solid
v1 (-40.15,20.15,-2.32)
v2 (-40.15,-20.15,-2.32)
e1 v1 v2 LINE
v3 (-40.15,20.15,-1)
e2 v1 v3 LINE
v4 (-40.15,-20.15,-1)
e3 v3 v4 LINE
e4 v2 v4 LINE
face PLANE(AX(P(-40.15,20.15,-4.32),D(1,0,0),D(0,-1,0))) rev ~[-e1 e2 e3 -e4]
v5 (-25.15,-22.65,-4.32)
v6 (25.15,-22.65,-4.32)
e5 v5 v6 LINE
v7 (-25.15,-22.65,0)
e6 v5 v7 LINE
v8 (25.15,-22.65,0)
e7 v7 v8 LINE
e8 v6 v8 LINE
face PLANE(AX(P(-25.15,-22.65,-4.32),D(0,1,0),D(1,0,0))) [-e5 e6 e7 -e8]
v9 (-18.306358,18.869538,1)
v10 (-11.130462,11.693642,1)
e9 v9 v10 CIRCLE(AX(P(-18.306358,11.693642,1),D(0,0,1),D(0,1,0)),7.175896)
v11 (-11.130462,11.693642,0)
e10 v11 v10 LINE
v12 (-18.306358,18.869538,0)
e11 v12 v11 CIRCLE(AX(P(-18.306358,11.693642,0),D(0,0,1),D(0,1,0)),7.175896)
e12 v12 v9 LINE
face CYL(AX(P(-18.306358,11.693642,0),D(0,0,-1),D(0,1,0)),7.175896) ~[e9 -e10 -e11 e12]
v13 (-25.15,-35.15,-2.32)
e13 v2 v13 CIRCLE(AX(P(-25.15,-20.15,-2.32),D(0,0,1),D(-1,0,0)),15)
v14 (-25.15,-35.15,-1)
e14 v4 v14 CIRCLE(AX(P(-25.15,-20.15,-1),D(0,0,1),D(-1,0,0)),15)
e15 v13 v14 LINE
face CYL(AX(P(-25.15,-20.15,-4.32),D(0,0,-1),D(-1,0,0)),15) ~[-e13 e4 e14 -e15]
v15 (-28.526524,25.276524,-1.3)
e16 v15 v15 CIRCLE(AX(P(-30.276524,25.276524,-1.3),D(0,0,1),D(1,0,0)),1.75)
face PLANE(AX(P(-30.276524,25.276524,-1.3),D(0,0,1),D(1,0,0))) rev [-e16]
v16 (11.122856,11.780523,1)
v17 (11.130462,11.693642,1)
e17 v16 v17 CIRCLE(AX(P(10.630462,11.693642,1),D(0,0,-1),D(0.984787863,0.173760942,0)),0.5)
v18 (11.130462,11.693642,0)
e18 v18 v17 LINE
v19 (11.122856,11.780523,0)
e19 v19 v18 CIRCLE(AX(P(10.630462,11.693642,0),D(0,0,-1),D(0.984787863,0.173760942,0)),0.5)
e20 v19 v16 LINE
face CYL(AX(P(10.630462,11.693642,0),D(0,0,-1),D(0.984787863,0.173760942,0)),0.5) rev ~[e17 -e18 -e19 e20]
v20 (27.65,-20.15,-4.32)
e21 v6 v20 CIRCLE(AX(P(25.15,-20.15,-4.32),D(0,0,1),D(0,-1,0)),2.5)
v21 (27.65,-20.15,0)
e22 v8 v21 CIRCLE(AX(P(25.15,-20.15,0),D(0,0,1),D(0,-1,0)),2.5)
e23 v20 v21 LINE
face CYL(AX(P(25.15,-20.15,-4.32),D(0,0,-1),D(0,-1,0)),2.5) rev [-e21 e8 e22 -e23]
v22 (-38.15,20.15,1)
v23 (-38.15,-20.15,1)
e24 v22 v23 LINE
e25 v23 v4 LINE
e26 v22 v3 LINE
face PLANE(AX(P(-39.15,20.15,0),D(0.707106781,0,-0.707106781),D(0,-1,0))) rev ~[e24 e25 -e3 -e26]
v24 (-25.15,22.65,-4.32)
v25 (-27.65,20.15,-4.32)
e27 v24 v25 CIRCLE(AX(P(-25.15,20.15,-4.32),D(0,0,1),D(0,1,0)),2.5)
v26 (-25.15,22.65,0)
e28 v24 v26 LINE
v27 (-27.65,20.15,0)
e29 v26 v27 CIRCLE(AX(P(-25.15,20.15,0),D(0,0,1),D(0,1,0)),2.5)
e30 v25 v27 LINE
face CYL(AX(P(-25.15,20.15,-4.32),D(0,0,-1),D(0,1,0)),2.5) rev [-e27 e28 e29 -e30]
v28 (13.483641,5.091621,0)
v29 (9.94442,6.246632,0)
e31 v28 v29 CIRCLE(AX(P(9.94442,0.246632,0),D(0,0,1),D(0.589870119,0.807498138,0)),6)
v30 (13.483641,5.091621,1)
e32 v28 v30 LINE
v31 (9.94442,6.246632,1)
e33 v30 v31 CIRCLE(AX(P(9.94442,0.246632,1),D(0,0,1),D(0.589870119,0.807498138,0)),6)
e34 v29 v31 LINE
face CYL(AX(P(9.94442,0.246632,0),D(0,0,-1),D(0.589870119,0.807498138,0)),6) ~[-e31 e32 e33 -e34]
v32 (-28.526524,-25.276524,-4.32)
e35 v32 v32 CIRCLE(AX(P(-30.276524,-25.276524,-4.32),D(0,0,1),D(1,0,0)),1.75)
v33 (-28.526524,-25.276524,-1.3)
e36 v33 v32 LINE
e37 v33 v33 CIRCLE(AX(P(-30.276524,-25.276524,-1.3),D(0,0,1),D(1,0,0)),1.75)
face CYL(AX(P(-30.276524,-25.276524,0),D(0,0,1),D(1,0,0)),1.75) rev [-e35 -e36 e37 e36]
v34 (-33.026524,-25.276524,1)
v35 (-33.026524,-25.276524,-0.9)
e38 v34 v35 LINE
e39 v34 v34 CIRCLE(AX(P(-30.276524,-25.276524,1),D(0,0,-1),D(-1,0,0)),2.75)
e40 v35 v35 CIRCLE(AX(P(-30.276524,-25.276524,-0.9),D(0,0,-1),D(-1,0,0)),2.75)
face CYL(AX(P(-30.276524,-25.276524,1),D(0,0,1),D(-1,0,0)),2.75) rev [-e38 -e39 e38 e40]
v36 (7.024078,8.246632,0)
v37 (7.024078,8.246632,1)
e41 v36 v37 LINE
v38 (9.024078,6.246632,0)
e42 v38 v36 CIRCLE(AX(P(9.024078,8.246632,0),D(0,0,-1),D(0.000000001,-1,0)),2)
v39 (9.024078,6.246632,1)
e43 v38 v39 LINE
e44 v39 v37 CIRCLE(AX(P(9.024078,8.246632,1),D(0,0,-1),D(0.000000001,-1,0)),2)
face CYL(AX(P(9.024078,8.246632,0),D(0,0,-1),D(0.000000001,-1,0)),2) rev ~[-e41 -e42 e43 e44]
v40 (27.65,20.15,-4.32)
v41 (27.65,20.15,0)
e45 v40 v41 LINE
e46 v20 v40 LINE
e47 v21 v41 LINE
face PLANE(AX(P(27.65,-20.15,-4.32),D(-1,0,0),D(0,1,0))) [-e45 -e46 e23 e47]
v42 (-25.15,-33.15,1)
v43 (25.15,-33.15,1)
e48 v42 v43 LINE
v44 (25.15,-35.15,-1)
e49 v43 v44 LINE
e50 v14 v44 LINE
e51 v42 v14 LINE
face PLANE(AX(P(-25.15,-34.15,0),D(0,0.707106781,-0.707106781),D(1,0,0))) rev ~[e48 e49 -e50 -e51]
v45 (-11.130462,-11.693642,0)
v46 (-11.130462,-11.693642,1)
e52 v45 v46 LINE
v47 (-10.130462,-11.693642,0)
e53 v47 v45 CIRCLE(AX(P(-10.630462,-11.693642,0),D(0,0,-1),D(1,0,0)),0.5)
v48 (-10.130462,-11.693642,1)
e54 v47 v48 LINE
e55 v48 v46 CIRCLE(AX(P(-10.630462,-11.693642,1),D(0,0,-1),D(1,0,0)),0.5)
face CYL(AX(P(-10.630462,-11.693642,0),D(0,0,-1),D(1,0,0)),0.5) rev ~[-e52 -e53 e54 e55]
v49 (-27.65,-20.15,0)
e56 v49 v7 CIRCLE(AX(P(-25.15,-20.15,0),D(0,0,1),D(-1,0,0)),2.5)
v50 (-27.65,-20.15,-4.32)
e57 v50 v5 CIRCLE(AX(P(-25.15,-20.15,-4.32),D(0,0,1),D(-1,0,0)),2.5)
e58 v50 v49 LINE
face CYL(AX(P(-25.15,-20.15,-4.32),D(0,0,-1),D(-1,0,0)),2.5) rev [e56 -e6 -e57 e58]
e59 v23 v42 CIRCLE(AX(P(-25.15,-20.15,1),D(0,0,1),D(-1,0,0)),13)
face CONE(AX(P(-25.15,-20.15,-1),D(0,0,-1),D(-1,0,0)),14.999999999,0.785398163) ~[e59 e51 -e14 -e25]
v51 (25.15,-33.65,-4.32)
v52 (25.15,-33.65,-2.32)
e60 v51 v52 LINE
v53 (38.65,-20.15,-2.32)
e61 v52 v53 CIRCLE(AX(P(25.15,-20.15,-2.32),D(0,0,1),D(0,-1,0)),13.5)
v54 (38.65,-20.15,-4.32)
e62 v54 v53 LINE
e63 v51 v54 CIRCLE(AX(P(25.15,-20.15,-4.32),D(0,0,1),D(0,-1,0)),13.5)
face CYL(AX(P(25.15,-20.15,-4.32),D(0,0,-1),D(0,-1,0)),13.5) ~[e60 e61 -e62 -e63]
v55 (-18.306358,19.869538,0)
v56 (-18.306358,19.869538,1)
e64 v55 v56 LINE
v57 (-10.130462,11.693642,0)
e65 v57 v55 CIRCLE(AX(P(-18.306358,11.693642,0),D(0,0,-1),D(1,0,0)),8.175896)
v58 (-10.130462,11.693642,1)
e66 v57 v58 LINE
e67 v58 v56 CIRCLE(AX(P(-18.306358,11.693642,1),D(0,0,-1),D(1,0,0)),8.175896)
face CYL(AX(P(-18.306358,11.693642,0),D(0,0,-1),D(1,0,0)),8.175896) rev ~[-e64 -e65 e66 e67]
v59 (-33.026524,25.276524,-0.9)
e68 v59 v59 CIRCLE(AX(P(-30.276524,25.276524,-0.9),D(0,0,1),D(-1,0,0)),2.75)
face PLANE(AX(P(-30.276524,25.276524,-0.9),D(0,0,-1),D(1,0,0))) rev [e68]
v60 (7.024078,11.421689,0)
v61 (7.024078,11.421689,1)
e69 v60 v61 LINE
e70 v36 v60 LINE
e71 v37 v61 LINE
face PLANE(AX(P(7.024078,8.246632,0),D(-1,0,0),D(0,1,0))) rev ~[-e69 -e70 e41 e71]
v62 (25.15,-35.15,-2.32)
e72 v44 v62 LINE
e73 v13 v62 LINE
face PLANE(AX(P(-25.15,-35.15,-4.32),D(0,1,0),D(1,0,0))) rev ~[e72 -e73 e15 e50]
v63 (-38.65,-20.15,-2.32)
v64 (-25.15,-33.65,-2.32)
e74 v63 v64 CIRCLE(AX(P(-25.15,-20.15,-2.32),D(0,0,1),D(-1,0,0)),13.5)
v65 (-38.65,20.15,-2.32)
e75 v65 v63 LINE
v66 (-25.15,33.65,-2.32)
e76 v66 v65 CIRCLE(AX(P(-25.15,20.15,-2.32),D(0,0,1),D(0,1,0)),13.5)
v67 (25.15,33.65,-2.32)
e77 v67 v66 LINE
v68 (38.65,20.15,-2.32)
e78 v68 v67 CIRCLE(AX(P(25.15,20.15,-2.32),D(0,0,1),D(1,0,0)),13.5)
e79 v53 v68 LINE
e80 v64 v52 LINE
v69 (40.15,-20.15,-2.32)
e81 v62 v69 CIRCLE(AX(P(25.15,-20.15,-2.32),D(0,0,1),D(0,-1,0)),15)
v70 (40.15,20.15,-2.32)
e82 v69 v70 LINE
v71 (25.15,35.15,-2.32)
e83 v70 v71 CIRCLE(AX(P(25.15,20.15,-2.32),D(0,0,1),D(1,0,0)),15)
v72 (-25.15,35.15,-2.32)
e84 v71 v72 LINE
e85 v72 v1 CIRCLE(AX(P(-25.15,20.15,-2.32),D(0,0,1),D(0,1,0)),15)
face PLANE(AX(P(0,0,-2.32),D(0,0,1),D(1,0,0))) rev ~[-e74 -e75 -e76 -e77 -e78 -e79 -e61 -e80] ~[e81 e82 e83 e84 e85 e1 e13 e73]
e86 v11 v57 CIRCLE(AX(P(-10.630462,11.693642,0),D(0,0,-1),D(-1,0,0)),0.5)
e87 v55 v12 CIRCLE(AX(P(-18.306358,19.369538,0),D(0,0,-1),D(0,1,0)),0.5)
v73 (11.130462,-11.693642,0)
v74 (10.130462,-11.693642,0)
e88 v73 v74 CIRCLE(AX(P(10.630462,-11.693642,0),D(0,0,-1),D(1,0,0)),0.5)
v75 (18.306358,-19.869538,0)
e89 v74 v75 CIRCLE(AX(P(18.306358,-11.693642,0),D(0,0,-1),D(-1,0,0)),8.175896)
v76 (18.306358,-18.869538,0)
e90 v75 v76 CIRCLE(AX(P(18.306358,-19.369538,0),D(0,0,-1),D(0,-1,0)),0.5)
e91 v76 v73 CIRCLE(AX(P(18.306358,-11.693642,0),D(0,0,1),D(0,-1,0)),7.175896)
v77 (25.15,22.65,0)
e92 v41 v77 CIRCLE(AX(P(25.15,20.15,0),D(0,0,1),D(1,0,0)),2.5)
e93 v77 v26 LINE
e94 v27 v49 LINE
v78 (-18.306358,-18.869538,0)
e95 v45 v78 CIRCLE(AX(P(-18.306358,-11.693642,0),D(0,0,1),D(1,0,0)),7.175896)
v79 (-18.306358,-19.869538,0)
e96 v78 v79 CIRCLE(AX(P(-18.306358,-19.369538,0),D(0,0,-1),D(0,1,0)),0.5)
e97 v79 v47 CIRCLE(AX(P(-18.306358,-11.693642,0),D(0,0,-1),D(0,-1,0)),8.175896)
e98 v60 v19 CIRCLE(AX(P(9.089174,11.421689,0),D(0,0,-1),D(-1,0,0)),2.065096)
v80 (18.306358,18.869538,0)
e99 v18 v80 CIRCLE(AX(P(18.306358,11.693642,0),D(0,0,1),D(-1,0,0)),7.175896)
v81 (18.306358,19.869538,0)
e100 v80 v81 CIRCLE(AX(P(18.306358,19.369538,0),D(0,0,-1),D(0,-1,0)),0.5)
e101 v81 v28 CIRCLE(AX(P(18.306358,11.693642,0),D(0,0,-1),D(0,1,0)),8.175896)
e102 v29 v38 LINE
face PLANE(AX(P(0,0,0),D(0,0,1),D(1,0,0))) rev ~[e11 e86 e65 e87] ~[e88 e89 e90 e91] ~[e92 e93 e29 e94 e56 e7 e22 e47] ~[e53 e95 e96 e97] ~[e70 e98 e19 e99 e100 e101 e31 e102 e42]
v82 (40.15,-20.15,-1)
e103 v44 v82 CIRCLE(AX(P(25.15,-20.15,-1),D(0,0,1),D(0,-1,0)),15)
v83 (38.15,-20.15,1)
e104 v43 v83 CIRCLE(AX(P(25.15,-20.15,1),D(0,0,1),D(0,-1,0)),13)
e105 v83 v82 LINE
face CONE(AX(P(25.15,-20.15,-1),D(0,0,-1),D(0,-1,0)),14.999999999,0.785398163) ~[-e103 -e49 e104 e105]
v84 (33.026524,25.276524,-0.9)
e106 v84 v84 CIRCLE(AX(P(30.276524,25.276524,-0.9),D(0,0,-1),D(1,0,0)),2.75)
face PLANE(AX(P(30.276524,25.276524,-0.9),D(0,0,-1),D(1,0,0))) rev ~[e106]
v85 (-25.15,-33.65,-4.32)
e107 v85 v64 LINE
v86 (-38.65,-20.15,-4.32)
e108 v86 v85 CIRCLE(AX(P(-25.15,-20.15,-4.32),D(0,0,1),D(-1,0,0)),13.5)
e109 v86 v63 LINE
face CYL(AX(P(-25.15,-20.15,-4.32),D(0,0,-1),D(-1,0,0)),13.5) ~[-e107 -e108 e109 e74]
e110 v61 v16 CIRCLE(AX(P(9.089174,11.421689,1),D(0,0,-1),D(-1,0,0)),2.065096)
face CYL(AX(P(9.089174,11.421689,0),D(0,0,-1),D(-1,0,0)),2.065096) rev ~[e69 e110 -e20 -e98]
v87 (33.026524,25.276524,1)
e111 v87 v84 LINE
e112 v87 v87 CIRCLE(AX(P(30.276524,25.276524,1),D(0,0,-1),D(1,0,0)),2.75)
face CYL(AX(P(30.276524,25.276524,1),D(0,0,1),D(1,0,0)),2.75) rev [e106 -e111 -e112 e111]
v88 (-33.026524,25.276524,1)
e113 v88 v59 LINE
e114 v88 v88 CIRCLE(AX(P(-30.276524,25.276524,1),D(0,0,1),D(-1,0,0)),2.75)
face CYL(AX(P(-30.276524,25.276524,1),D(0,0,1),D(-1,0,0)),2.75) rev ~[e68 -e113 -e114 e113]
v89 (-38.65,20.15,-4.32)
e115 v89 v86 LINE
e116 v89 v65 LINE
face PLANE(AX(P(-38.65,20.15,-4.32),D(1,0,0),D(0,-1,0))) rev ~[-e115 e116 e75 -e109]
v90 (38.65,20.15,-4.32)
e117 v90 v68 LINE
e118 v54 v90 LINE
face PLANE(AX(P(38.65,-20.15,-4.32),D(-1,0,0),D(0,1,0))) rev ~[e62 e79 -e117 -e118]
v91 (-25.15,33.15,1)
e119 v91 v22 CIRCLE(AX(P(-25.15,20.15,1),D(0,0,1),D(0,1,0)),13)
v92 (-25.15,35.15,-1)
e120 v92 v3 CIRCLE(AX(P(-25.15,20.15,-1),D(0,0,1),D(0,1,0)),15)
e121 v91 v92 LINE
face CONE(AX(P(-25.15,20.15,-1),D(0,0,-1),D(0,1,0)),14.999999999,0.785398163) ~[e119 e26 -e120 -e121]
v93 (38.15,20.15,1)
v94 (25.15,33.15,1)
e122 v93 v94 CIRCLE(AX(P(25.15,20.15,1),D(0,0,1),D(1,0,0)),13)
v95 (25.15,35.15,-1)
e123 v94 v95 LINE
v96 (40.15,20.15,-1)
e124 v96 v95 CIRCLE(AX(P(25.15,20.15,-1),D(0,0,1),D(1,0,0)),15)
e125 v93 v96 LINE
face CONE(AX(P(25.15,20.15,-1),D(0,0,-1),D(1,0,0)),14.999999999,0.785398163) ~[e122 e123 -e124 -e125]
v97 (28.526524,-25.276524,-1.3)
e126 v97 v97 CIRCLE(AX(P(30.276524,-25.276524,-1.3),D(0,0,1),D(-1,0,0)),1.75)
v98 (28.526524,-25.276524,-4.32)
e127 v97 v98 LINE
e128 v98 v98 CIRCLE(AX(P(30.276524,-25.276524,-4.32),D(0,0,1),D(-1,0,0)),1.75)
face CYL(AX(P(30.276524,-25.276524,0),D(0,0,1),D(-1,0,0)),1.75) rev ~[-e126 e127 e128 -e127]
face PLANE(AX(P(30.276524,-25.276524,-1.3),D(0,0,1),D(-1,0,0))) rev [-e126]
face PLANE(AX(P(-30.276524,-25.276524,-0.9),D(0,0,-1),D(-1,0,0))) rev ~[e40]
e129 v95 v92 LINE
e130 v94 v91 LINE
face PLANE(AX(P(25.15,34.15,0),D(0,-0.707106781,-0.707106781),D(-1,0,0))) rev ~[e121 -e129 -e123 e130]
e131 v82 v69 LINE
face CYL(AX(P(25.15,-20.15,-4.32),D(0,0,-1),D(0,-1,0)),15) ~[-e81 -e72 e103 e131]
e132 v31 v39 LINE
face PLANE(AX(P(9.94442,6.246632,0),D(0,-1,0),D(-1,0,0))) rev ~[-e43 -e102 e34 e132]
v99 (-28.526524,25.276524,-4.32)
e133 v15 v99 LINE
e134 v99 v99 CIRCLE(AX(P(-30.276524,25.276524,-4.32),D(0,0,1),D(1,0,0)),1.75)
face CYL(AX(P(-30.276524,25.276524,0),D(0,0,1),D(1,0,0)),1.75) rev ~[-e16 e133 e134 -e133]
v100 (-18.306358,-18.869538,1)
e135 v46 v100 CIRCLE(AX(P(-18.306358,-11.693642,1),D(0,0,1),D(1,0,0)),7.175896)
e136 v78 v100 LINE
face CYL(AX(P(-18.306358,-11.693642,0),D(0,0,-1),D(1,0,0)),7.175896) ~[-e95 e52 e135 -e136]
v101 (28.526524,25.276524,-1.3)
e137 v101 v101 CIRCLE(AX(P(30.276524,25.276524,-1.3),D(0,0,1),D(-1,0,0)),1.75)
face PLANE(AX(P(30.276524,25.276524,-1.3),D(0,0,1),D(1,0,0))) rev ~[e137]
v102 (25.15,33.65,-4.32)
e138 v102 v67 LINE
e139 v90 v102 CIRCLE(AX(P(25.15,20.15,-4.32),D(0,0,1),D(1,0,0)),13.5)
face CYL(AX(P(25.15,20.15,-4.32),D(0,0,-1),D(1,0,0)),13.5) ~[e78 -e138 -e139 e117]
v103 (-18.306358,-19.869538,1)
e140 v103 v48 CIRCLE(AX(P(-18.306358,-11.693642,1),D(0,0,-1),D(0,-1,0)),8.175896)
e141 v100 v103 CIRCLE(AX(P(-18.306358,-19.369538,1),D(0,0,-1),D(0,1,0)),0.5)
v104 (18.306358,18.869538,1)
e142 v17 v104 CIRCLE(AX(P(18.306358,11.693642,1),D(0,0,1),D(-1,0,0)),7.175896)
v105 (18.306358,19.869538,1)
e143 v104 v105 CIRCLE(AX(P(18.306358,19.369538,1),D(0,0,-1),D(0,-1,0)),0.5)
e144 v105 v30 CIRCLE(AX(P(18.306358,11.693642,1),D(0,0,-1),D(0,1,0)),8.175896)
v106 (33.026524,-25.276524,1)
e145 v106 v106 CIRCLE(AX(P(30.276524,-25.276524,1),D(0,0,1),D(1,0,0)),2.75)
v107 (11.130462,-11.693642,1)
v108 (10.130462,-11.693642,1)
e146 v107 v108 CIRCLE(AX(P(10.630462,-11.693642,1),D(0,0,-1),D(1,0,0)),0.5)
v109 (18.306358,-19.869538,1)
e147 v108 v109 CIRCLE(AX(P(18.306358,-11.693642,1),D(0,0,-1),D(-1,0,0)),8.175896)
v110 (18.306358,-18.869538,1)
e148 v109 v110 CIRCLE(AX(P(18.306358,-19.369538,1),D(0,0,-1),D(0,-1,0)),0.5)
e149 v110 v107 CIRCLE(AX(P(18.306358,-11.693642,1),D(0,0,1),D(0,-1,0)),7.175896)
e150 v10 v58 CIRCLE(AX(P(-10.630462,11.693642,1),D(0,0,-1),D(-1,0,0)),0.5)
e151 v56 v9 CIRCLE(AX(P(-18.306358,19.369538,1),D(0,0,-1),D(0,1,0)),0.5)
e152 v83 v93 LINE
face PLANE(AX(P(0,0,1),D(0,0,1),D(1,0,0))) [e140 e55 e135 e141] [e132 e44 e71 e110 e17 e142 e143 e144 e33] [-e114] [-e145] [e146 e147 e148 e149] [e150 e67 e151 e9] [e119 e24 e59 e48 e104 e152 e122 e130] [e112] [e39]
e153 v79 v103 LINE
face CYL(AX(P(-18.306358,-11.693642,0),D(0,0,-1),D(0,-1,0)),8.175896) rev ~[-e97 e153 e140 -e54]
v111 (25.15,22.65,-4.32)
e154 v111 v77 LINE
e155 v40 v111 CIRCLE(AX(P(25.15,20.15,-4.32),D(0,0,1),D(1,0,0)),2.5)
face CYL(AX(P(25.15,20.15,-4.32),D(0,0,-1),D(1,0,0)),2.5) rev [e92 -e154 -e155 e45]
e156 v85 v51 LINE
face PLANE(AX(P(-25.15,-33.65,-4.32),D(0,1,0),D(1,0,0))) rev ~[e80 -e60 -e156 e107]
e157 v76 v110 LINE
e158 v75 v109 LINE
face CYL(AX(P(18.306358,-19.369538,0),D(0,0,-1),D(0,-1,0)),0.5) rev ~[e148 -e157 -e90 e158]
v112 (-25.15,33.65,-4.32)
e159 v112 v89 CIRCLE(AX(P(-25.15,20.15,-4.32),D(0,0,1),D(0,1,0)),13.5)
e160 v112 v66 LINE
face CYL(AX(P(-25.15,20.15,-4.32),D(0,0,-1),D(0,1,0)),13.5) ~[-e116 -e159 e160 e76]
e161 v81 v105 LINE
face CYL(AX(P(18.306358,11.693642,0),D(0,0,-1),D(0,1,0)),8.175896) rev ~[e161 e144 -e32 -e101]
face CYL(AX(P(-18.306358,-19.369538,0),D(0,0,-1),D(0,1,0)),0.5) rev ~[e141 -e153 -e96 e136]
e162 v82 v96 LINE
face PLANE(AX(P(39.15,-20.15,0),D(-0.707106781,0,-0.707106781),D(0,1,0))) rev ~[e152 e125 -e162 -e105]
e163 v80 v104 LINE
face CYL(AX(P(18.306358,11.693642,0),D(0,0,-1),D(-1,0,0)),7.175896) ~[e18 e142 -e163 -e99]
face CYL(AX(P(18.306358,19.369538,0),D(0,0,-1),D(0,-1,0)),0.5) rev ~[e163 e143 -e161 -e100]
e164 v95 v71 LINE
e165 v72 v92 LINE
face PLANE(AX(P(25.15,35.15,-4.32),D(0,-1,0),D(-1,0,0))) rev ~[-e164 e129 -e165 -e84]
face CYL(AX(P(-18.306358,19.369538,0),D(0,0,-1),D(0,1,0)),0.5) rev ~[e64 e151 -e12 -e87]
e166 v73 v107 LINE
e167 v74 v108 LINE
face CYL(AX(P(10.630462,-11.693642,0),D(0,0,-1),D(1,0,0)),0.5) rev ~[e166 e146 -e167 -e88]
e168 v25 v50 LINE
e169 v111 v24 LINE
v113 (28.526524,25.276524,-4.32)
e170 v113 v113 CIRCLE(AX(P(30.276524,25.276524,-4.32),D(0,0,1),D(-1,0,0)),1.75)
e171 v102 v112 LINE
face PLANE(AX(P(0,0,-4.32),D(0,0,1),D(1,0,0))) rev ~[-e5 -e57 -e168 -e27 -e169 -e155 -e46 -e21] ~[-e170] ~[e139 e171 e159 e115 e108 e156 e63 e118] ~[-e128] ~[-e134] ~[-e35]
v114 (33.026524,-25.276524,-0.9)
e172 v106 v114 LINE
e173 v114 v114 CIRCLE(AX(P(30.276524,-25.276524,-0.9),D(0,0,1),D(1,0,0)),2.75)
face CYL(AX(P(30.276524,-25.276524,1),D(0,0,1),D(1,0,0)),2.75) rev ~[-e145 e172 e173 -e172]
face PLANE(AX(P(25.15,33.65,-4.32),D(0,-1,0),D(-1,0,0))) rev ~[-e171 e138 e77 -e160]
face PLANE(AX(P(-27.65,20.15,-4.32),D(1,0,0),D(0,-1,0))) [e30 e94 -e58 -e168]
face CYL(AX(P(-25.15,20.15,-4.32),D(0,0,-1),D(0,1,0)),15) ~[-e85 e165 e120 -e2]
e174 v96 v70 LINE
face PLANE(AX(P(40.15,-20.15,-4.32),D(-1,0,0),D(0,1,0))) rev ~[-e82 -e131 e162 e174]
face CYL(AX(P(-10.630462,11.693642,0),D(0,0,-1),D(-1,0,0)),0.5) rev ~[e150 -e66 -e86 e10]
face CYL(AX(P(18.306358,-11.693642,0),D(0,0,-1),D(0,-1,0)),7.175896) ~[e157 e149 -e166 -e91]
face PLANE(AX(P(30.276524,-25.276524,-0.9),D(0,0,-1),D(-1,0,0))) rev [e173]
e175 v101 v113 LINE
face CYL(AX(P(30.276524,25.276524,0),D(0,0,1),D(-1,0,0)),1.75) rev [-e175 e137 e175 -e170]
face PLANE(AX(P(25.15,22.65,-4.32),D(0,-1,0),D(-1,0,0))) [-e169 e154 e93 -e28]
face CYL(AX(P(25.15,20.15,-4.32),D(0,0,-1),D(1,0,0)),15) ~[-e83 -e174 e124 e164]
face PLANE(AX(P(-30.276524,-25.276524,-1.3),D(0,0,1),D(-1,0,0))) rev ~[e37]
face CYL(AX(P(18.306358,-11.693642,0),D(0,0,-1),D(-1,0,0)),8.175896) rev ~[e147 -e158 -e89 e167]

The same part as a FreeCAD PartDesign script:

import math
import FreeCAD as App
import Part
import Sketcher

V = App.Vector


def edges_at(feature, points):
    """Names of the edges that pass closest to the given points."""
    edges = feature.Shape.Edges
    near = lambda p: min(range(len(edges)), key=lambda i: edges[i].distToShape(Part.Vertex(*p))[0])
    return sorted({f"Edge{near(p) + 1}" for p in points})

doc = App.newDocument("Part")
body = doc.addObject("PartDesign::Body", "Body")

# Sketch on XY plane
sketch1 = doc.addObject("Sketcher::SketchObject", "Sketch")
body.addObject(sketch1)
sketch1.AttachmentSupport = (doc.XY_Plane, [""])
sketch1.MapMode = "FlatFace"
sketch1.addGeometry([
    Part.ArcOfCircle(Part.Circle(V(25.15, 20.15, 0), V(0, 0, 1), 15), math.radians(0), math.radians(90)),  # 0
    Part.LineSegment(V(25.15, 35.15, 0), V(-25.15, 35.15, 0)),  # 1
    Part.ArcOfCircle(Part.Circle(V(-25.15, 20.15, 0), V(0, 0, 1), 15), math.radians(90), math.radians(180)),  # 2
    Part.LineSegment(V(-40.15, 20.15, 0), V(-40.15, -20.15, 0)),  # 3
    Part.ArcOfCircle(Part.Circle(V(-25.15, -20.15, 0), V(0, 0, 1), 15), math.radians(180), math.radians(270)),  # 4
    Part.LineSegment(V(-25.15, -35.15, 0), V(25.15, -35.15, 0)),  # 5
    Part.ArcOfCircle(Part.Circle(V(25.15, -20.15, 0), V(0, 0, 1), 15), math.radians(-90), math.radians(0)),  # 6
    Part.LineSegment(V(40.15, -20.15, 0), V(40.15, 20.15, 0)),  # 7
    Part.ArcOfCircle(Part.Circle(V(-18.31, -11.69, 0), V(0, 0, 1), 7.18), math.radians(0), math.radians(270)),  # 8
    Part.ArcOfCircle(Part.Circle(V(-18.31, -19.37, 0), V(0, 0, 1), 0.5), math.radians(-90), math.radians(90)),  # 9
    Part.ArcOfCircle(Part.Circle(V(-18.31, -11.69, 0), V(0, 0, 1), 8.18), math.radians(0), math.radians(270)),  # 10
    Part.ArcOfCircle(Part.Circle(V(-10.63, -11.69, 0), V(0, 0, 1), 0.5), math.radians(180), math.radians(360)),  # 11
    Part.ArcOfCircle(Part.Circle(V(18.31, -11.69, 0), V(0, 0, 1), 7.18), math.radians(-90), math.radians(180)),  # 12
    Part.ArcOfCircle(Part.Circle(V(10.63, -11.69, 0), V(0, 0, 1), 0.5), math.radians(180), math.radians(360)),  # 13
    Part.ArcOfCircle(Part.Circle(V(18.31, -11.69, 0), V(0, 0, 1), 8.18), math.radians(-90), math.radians(180)),  # 14
    Part.ArcOfCircle(Part.Circle(V(18.31, -19.37, 0), V(0, 0, 1), 0.5), math.radians(90), math.radians(270)),  # 15
    Part.ArcOfCircle(Part.Circle(V(-18.31, 19.37, 0), V(0, 0, 1), 0.5), math.radians(-90), math.radians(90)),  # 16
    Part.ArcOfCircle(Part.Circle(V(-18.31, 11.69, 0), V(0, 0, 1), 7.18), math.radians(90), math.radians(360)),  # 17
    Part.ArcOfCircle(Part.Circle(V(-10.63, 11.69, 0), V(0, 0, 1), 0.5), math.radians(0), math.radians(180)),  # 18
    Part.ArcOfCircle(Part.Circle(V(-18.31, 11.69, 0), V(0, 0, 1), 8.18), math.radians(90), math.radians(360)),  # 19
    Part.ArcOfCircle(Part.Circle(V(9.94, 0.25, 0), V(0, 0, 1), 6), math.radians(54), math.radians(90)),  # 20
    Part.LineSegment(V(9.94, 6.25, 0), V(9.02, 6.25, 0)),  # 21
    Part.ArcOfCircle(Part.Circle(V(9.02, 8.25, 0), V(0, 0, 1), 2), math.radians(180), math.radians(270)),  # 22
    Part.LineSegment(V(7.02, 8.25, 0), V(7.02, 11.42, 0)),  # 23
    Part.ArcOfCircle(Part.Circle(V(9.09, 11.42, 0), V(0, 0, 1), 2.07), math.radians(10), math.radians(180)),  # 24
    Part.ArcOfCircle(Part.Circle(V(10.63, 11.69, 0), V(0, 0, 1), 0.5), math.radians(0), math.radians(10.01)),  # 25
    Part.ArcOfCircle(Part.Circle(V(18.31, 11.69, 0), V(0, 0, 1), 7.18), math.radians(180), math.radians(450)),  # 26
    Part.ArcOfCircle(Part.Circle(V(18.31, 19.37, 0), V(0, 0, 1), 0.5), math.radians(90), math.radians(270)),  # 27
    Part.ArcOfCircle(Part.Circle(V(18.31, 11.69, 0), V(0, 0, 1), 8.18), math.radians(-126), math.radians(90)),  # 28
], False)
sketch1.addConstraint([
    Sketcher.Constraint("Tangent", 0, 2, 1, 1),
    Sketcher.Constraint("Tangent", 1, 2, 2, 1),
    Sketcher.Constraint("Tangent", 2, 2, 3, 1),
    Sketcher.Constraint("Tangent", 3, 2, 4, 1),
    Sketcher.Constraint("Tangent", 4, 2, 5, 1),
    Sketcher.Constraint("Tangent", 5, 2, 6, 1),
    Sketcher.Constraint("Tangent", 6, 2, 7, 1),
    Sketcher.Constraint("Tangent", 7, 2, 0, 1),
    Sketcher.Constraint("Tangent", 8, 2, 9, 2),
    Sketcher.Constraint("Tangent", 9, 1, 10, 2),
    Sketcher.Constraint("Tangent", 10, 1, 11, 2),
    Sketcher.Constraint("Tangent", 11, 1, 8, 1),
    Sketcher.Constraint("Tangent", 12, 2, 13, 2),
    Sketcher.Constraint("Tangent", 13, 1, 14, 2),
    Sketcher.Constraint("Tangent", 14, 1, 15, 2),
    Sketcher.Constraint("Tangent", 15, 1, 12, 1),
    Sketcher.Constraint("Tangent", 16, 1, 17, 1),
    Sketcher.Constraint("Tangent", 17, 2, 18, 2),
    Sketcher.Constraint("Tangent", 18, 1, 19, 2),
    Sketcher.Constraint("Tangent", 19, 1, 16, 2),
    Sketcher.Constraint("Tangent", 20, 2, 21, 1),
    Sketcher.Constraint("Tangent", 21, 2, 22, 2),
    Sketcher.Constraint("Tangent", 22, 1, 23, 1),
    Sketcher.Constraint("Tangent", 23, 2, 24, 2),
    Sketcher.Constraint("Tangent", 24, 1, 25, 2),
    Sketcher.Constraint("Tangent", 25, 1, 26, 1),
    Sketcher.Constraint("Tangent", 26, 2, 27, 2),
    Sketcher.Constraint("Tangent", 27, 1, 28, 2),
    Sketcher.Constraint("Tangent", 28, 1, 20, 1),
    Sketcher.Constraint("Horizontal", 1),
    Sketcher.Constraint("Vertical", 3),
    Sketcher.Constraint("Horizontal", 5),
    Sketcher.Constraint("Vertical", 7),
    Sketcher.Constraint("Horizontal", 21),
    Sketcher.Constraint("Vertical", 23),
    Sketcher.Constraint("Coincident", 10, 3, 8, 3),
    Sketcher.Constraint("Coincident", 14, 3, 12, 3),
    Sketcher.Constraint("Coincident", 19, 3, 17, 3),
    Sketcher.Constraint("Coincident", 28, 3, 26, 3),
    Sketcher.Constraint("Equal", 0, 2),
    Sketcher.Constraint("Equal", 2, 4),
    Sketcher.Constraint("Equal", 4, 6),
    Sketcher.Constraint("Equal", 8, 12),
    Sketcher.Constraint("Equal", 11, 13),
    Sketcher.Constraint("Equal", 15, 16),
    Sketcher.Constraint("Equal", 12, 17),
    Sketcher.Constraint("Equal", 18, 25),
    Sketcher.Constraint("Equal", 17, 26),
    Sketcher.Constraint("Equal", 25, 27),
    Sketcher.Constraint("Symmetric", 0, 3, 4, 3, -1, 1),
    Sketcher.Constraint("Symmetric", 15, 3, 16, 3, -1, 1),
    Sketcher.Constraint("Symmetric", 13, 3, 18, 3, -1, 1),
    Sketcher.Constraint("Symmetric", 11, 3, 25, 3, -1, 1),
    Sketcher.Constraint("Symmetric", 9, 3, 27, 3, -1, 1),
    Sketcher.Constraint("Symmetric", 8, 3, 12, 3, -2),
    Sketcher.Constraint("Horizontal", 10, 3, 11, 3),
    Sketcher.Constraint("Horizontal", 12, 3, 13, 3),
    Sketcher.Constraint("Vertical", 8, 3, 9, 3),
    Sketcher.Constraint("Vertical", 14, 3, 15, 3),
    Sketcher.Constraint("Radius", 0, 15.0),
    Sketcher.Constraint("Radius", 20, 6.0),
    Sketcher.Constraint("Radius", 22, 2.0),
    Sketcher.Constraint("Radius", 9, 0.5),
    Sketcher.Constraint("DistanceX", 1, 2, 1, 1, 50.3),
    Sketcher.Constraint("DistanceY", 3, 2, 3, 1, 40.3),
    Sketcher.Constraint("Radius", 8, 7.175896),
    Sketcher.Constraint("Radius", 24, 2.065096),
    Sketcher.Constraint("DistanceX", 21, 2, 21, 1, 0.920342),
    Sketcher.Constraint("DistanceY", 23, 1, 23, 2, 3.175057),
    Sketcher.Constraint("DistanceY", 9, 3, -1, 1, 19.369538),
    Sketcher.Constraint("DistanceX", 11, 3, -1, 1, 10.630462),
])
pad1 = doc.addObject("PartDesign::Pad", "Pad")
body.addObject(pad1)
pad1.Profile = sketch1
pad1.Length = 1

# Sketch on XY plane
sketch2 = doc.addObject("Sketcher::SketchObject", "Sketch001")
body.addObject(sketch2)
sketch2.AttachmentSupport = (doc.XY_Plane, [""])
sketch2.MapMode = "FlatFace"
sketch2.AttachmentOffset = App.Placement(V(0, 0, -4.32), App.Rotation())
sketch2.addGeometry([
    Part.LineSegment(V(25.1, 35.1, 0), V(-25.1, 35.1, 0)),  # 0
    Part.ArcOfCircle(Part.Circle(V(-25.2, 20.2, 0), V(0, 0, 1), 15), math.radians(90), math.radians(180)),  # 1
    Part.LineSegment(V(-40.1, 20.1, 0), V(-40.1, -20.1, 0)),  # 2
    Part.ArcOfCircle(Part.Circle(V(-25.2, -20.2, 0), V(0, 0, 1), 15), math.radians(180), math.radians(270)),  # 3
    Part.LineSegment(V(-25.1, -35.1, 0), V(25.1, -35.1, 0)),  # 4
    Part.ArcOfCircle(Part.Circle(V(25.2, -20.2, 0), V(0, 0, 1), 15), math.radians(-90), math.radians(0)),  # 5
    Part.LineSegment(V(40.1, -20.1, 0), V(40.1, 20.1, 0)),  # 6
    Part.ArcOfCircle(Part.Circle(V(25.2, 20.2, 0), V(0, 0, 1), 15), math.radians(0), math.radians(90)),  # 7
    Part.LineSegment(V(-27.6, -20.1, 0), V(-27.6, 20.1, 0)),  # 8
    Part.ArcOfCircle(Part.Circle(V(-25.1, 20.1, 0), V(0, 0, 1), 2.5), math.radians(90), math.radians(180)),  # 9
    Part.LineSegment(V(-25.1, 22.6, 0), V(25.1, 22.6, 0)),  # 10
    Part.ArcOfCircle(Part.Circle(V(25.1, 20.1, 0), V(0, 0, 1), 2.5), math.radians(0), math.radians(90)),  # 11
    Part.LineSegment(V(27.6, 20.1, 0), V(27.6, -20.1, 0)),  # 12
    Part.ArcOfCircle(Part.Circle(V(25.1, -20.1, 0), V(0, 0, 1), 2.5), math.radians(-90), math.radians(0)),  # 13
    Part.LineSegment(V(25.1, -22.6, 0), V(-25.1, -22.6, 0)),  # 14
    Part.ArcOfCircle(Part.Circle(V(-25.1, -20.1, 0), V(0, 0, 1), 2.5), math.radians(180), math.radians(270)),  # 15
], False)
sketch2.addConstraint([
    Sketcher.Constraint("Tangent", 0, 2, 1, 1),
    Sketcher.Constraint("Tangent", 1, 2, 2, 1),
    Sketcher.Constraint("Tangent", 2, 2, 3, 1),
    Sketcher.Constraint("Tangent", 3, 2, 4, 1),
    Sketcher.Constraint("Tangent", 4, 2, 5, 1),
    Sketcher.Constraint("Tangent", 5, 2, 6, 1),
    Sketcher.Constraint("Tangent", 6, 2, 7, 1),
    Sketcher.Constraint("Tangent", 7, 2, 0, 1),
    Sketcher.Constraint("Tangent", 8, 2, 9, 2),
    Sketcher.Constraint("Tangent", 9, 1, 10, 1),
    Sketcher.Constraint("Tangent", 10, 2, 11, 2),
    Sketcher.Constraint("Tangent", 11, 1, 12, 1),
    Sketcher.Constraint("Tangent", 12, 2, 13, 2),
    Sketcher.Constraint("Tangent", 13, 1, 14, 1),
    Sketcher.Constraint("Tangent", 14, 2, 15, 2),
    Sketcher.Constraint("Tangent", 15, 1, 8, 1),
    Sketcher.Constraint("Horizontal", 0),
    Sketcher.Constraint("Vertical", 2),
    Sketcher.Constraint("Horizontal", 4),
    Sketcher.Constraint("Vertical", 6),
    Sketcher.Constraint("Vertical", 8),
    Sketcher.Constraint("Horizontal", 10),
    Sketcher.Constraint("Vertical", 12),
    Sketcher.Constraint("Horizontal", 14),
    Sketcher.Constraint("Coincident", 9, 3, 1, 3),
    Sketcher.Constraint("Coincident", 11, 3, 7, 3),
    Sketcher.Constraint("Coincident", 13, 3, 5, 3),
    Sketcher.Constraint("Equal", 1, 3),
    Sketcher.Constraint("Equal", 3, 5),
    Sketcher.Constraint("Equal", 5, 7),
    Sketcher.Constraint("Equal", 13, 15),
    Sketcher.Constraint("Symmetric", 1, 3, 5, 3, -1, 1),
    Sketcher.Constraint("Radius", 1, 15.0),
    Sketcher.Constraint("Radius", 9, 2.5),
    Sketcher.Constraint("DistanceX", 0, 2, 0, 1, 50.3),
    Sketcher.Constraint("DistanceY", 2, 2, 2, 1, 40.3),
])
pad2 = doc.addObject("PartDesign::Pad", "Pad001")
body.addObject(pad2)
pad2.Profile = sketch2
pad2.Length = 4.32
doc.recompute()

chamfer = doc.addObject("PartDesign::Chamfer", "Chamfer")
body.addObject(chamfer)
chamfer.Base = (pad2, edges_at(pad2, [
    (35.757, 30.757, 1),
    (0, 35.15, 1),
    (-35.757, 30.757, 1),
    (-40.15, 0, 1),
    (-35.757, -30.757, 1),
    (0, -35.15, 1),
    (35.757, -30.757, 1),
    (40.15, 0, 1),
]))
chamfer.Size = 2

# Sketch on XY plane
sketch3 = doc.addObject("Sketcher::SketchObject", "Sketch002")
body.addObject(sketch3)
sketch3.AttachmentSupport = (doc.XY_Plane, [""])
sketch3.MapMode = "FlatFace"
sketch3.AttachmentOffset = App.Placement(V(0, 0, -4.32), App.Rotation())
sketch3.addGeometry([
    Part.LineSegment(V(40, 20, 0), V(40, -20, 0)),  # 0
    Part.ArcOfCircle(Part.Circle(V(25, -20, 0), V(0, 0, 1), 15), math.radians(-90), math.radians(0)),  # 1
    Part.LineSegment(V(25, -35, 0), V(-25, -35, 0)),  # 2
    Part.ArcOfCircle(Part.Circle(V(-25, -20, 0), V(0, 0, 1), 15), math.radians(180), math.radians(270)),  # 3
    Part.LineSegment(V(-40, -20, 0), V(-40, 20, 0)),  # 4
    Part.ArcOfCircle(Part.Circle(V(-25, 20, 0), V(0, 0, 1), 15), math.radians(90), math.radians(180)),  # 5
    Part.LineSegment(V(-25, 35, 0), V(25, 35, 0)),  # 6
    Part.ArcOfCircle(Part.Circle(V(25, 20, 0), V(0, 0, 1), 15), math.radians(0), math.radians(90)),  # 7
    Part.LineSegment(V(-25, -34, 0), V(25, -34, 0)),  # 8
    Part.ArcOfCircle(Part.Circle(V(25, -20, 0), V(0, 0, 1), 14), math.radians(-90), math.radians(0)),  # 9
    Part.LineSegment(V(39, -20, 0), V(39, 20, 0)),  # 10
    Part.ArcOfCircle(Part.Circle(V(25, 20, 0), V(0, 0, 1), 14), math.radians(0), math.radians(90)),  # 11
    Part.LineSegment(V(25, 34, 0), V(-25, 34, 0)),  # 12
    Part.ArcOfCircle(Part.Circle(V(-25, 20, 0), V(0, 0, 1), 14), math.radians(90), math.radians(180)),  # 13
    Part.LineSegment(V(-39, 20, 0), V(-39, -20, 0)),  # 14
    Part.ArcOfCircle(Part.Circle(V(-25, -20, 0), V(0, 0, 1), 14), math.radians(180), math.radians(270)),  # 15
], False)
sketch3.addConstraint([
    Sketcher.Constraint("Tangent", 0, 2, 1, 2),
    Sketcher.Constraint("Tangent", 1, 1, 2, 1),
    Sketcher.Constraint("Tangent", 2, 2, 3, 2),
    Sketcher.Constraint("Tangent", 3, 1, 4, 1),
    Sketcher.Constraint("Tangent", 4, 2, 5, 2),
    Sketcher.Constraint("Tangent", 5, 1, 6, 1),
    Sketcher.Constraint("Tangent", 6, 2, 7, 2),
    Sketcher.Constraint("Tangent", 7, 1, 0, 1),
    Sketcher.Constraint("Tangent", 8, 2, 9, 1),
    Sketcher.Constraint("Tangent", 9, 2, 10, 1),
    Sketcher.Constraint("Tangent", 10, 2, 11, 1),
    Sketcher.Constraint("Tangent", 11, 2, 12, 1),
    Sketcher.Constraint("Tangent", 12, 2, 13, 1),
    Sketcher.Constraint("Tangent", 13, 2, 14, 1),
    Sketcher.Constraint("Tangent", 14, 2, 15, 1),
    Sketcher.Constraint("Tangent", 15, 2, 8, 1),
    Sketcher.Constraint("Vertical", 0),
    Sketcher.Constraint("Horizontal", 2),
    Sketcher.Constraint("Vertical", 4),
    Sketcher.Constraint("Horizontal", 6),
    Sketcher.Constraint("Horizontal", 8),
    Sketcher.Constraint("Vertical", 10),
    Sketcher.Constraint("Horizontal", 12),
    Sketcher.Constraint("Vertical", 14),
    Sketcher.Constraint("Coincident", 9, 3, 1, 3),
    Sketcher.Constraint("Coincident", 11, 3, 7, 3),
    Sketcher.Constraint("Coincident", 13, 3, 5, 3),
    Sketcher.Constraint("Equal", 1, 3),
    Sketcher.Constraint("Equal", 3, 5),
    Sketcher.Constraint("Equal", 5, 7),
    Sketcher.Constraint("Equal", 13, 15),
    Sketcher.Constraint("Symmetric", 1, 3, 5, 3, -1, 1),
    Sketcher.Constraint("Radius", 1, 15.0),
    Sketcher.Constraint("Radius", 9, 13.5),
    Sketcher.Constraint("DistanceX", 2, 2, 2, 1, 50.3),
    Sketcher.Constraint("DistanceY", 0, 2, 0, 1, 40.3),
])
pocket1 = doc.addObject("PartDesign::Pocket", "Pocket")
body.addObject(pocket1)
pocket1.Profile = sketch3
pocket1.Length = 2
pocket1.Reversed = True

# Sketch on XY plane
sketch4 = doc.addObject("Sketcher::SketchObject", "Sketch003")
body.addObject(sketch4)
sketch4.AttachmentSupport = (doc.XY_Plane, [""])
sketch4.MapMode = "FlatFace"
sketch4.addGeometry(Part.Circle(V(30.3, 25.3, 0), V(0, 0, 1), 1.8), False)
sketch4.addConstraint([
    Sketcher.Constraint("Diameter", 0, 3.5),
    Sketcher.Constraint("DistanceX", -1, 1, 0, 3, 30.276524),
    Sketcher.Constraint("DistanceY", -1, 1, 0, 3, 25.276524),
])
pocket2 = doc.addObject("PartDesign::Pocket", "Pocket001")
body.addObject(pocket2)
pocket2.Profile = sketch4
pocket2.Type = "ThroughAll"

# Sketch on XY plane
sketch5 = doc.addObject("Sketcher::SketchObject", "Sketch004")
body.addObject(sketch5)
sketch5.AttachmentSupport = (doc.XY_Plane, [""])
sketch5.MapMode = "FlatFace"
sketch5.AttachmentOffset = App.Placement(V(0, 0, 1), App.Rotation())
sketch5.addGeometry(Part.Circle(V(30.3, 25.3, 0), V(0, 0, 1), 2.8), False)
sketch5.addConstraint([
    Sketcher.Constraint("Diameter", 0, 5.5),
    Sketcher.Constraint("DistanceX", -1, 1, 0, 3, 30.276524),
    Sketcher.Constraint("DistanceY", -1, 1, 0, 3, 25.276524),
])
pocket3 = doc.addObject("PartDesign::Pocket", "Pocket002")
body.addObject(pocket3)
pocket3.Profile = sketch5
pocket3.Length = 1.9

# Sketch on XY plane
sketch6 = doc.addObject("Sketcher::SketchObject", "Sketch005")
body.addObject(sketch6)
sketch6.AttachmentSupport = (doc.XY_Plane, [""])
sketch6.MapMode = "FlatFace"
sketch6.AttachmentOffset = App.Placement(V(0, 0, -0.9), App.Rotation())
sketch6.addGeometry(Part.Circle(V(30.3, 25.3, 0), V(0, 0, 1), 2.8), False)
sketch6.addConstraint([
    Sketcher.Constraint("Diameter", 0, 5.5),
    Sketcher.Constraint("DistanceX", -1, 1, 0, 3, 30.276524),
    Sketcher.Constraint("DistanceY", -1, 1, 0, 3, 25.276524),
])
pad3 = doc.addObject("PartDesign::Pad", "Pad002")
body.addObject(pad3)
pad3.Profile = sketch6
pad3.Length = 0.4
pad3.Reversed = True
doc.recompute()

mirrored = doc.addObject("PartDesign::Mirrored", "Mirrored")
body.addObject(mirrored)
mirrored.Originals = [pocket2, pocket3, pad3]
mirrored.MirrorPlane = (doc.YZ_Plane, [""])
body.Tip = mirrored
doc.recompute()

mirrored2 = doc.addObject("PartDesign::Mirrored", "Mirrored001")
body.addObject(mirrored2)
mirrored2.Originals = [pocket2, pocket3, pad3]
mirrored2.MirrorPlane = (doc.XZ_Plane, [""])
body.Tip = mirrored2

# Sketch on XY plane
sketch7 = doc.addObject("Sketcher::SketchObject", "Sketch006")
body.addObject(sketch7)
sketch7.AttachmentSupport = (doc.XY_Plane, [""])
sketch7.MapMode = "FlatFace"
sketch7.addGeometry(Part.Circle(V(-30.3, -25.3, 0), V(0, 0, 1), 1.8), False)
sketch7.addConstraint([
    Sketcher.Constraint("Diameter", 0, 3.5),
    Sketcher.Constraint("DistanceX", 0, 3, -1, 1, 30.276524),
    Sketcher.Constraint("DistanceY", 0, 3, -1, 1, 25.276524),
])
pocket4 = doc.addObject("PartDesign::Pocket", "Pocket003")
body.addObject(pocket4)
pocket4.Profile = sketch7
pocket4.Type = "ThroughAll"

# Sketch on XY plane
sketch8 = doc.addObject("Sketcher::SketchObject", "Sketch007")
body.addObject(sketch8)
sketch8.AttachmentSupport = (doc.XY_Plane, [""])
sketch8.MapMode = "FlatFace"
sketch8.AttachmentOffset = App.Placement(V(0, 0, 1), App.Rotation())
sketch8.addGeometry(Part.Circle(V(-30.3, -25.3, 0), V(0, 0, 1), 2.8), False)
sketch8.addConstraint([
    Sketcher.Constraint("Diameter", 0, 5.5),
    Sketcher.Constraint("DistanceX", 0, 3, -1, 1, 30.276524),
    Sketcher.Constraint("DistanceY", 0, 3, -1, 1, 25.276524),
])
pocket5 = doc.addObject("PartDesign::Pocket", "Pocket004")
body.addObject(pocket5)
pocket5.Profile = sketch8
pocket5.Length = 1.9

# Sketch on XY plane
sketch9 = doc.addObject("Sketcher::SketchObject", "Sketch008")
body.addObject(sketch9)
sketch9.AttachmentSupport = (doc.XY_Plane, [""])
sketch9.MapMode = "FlatFace"
sketch9.AttachmentOffset = App.Placement(V(0, 0, -0.9), App.Rotation())
sketch9.addGeometry(Part.Circle(V(-30.3, -25.3, 0), V(0, 0, 1), 2.8), False)
sketch9.addConstraint([
    Sketcher.Constraint("Diameter", 0, 5.5),
    Sketcher.Constraint("DistanceX", 0, 3, -1, 1, 30.276524),
    Sketcher.Constraint("DistanceY", 0, 3, -1, 1, 25.276524),
])
pad4 = doc.addObject("PartDesign::Pad", "Pad003")
body.addObject(pad4)
pad4.Profile = sketch9
pad4.Length = 0.4
pad4.Reversed = True

doc.recompute()
